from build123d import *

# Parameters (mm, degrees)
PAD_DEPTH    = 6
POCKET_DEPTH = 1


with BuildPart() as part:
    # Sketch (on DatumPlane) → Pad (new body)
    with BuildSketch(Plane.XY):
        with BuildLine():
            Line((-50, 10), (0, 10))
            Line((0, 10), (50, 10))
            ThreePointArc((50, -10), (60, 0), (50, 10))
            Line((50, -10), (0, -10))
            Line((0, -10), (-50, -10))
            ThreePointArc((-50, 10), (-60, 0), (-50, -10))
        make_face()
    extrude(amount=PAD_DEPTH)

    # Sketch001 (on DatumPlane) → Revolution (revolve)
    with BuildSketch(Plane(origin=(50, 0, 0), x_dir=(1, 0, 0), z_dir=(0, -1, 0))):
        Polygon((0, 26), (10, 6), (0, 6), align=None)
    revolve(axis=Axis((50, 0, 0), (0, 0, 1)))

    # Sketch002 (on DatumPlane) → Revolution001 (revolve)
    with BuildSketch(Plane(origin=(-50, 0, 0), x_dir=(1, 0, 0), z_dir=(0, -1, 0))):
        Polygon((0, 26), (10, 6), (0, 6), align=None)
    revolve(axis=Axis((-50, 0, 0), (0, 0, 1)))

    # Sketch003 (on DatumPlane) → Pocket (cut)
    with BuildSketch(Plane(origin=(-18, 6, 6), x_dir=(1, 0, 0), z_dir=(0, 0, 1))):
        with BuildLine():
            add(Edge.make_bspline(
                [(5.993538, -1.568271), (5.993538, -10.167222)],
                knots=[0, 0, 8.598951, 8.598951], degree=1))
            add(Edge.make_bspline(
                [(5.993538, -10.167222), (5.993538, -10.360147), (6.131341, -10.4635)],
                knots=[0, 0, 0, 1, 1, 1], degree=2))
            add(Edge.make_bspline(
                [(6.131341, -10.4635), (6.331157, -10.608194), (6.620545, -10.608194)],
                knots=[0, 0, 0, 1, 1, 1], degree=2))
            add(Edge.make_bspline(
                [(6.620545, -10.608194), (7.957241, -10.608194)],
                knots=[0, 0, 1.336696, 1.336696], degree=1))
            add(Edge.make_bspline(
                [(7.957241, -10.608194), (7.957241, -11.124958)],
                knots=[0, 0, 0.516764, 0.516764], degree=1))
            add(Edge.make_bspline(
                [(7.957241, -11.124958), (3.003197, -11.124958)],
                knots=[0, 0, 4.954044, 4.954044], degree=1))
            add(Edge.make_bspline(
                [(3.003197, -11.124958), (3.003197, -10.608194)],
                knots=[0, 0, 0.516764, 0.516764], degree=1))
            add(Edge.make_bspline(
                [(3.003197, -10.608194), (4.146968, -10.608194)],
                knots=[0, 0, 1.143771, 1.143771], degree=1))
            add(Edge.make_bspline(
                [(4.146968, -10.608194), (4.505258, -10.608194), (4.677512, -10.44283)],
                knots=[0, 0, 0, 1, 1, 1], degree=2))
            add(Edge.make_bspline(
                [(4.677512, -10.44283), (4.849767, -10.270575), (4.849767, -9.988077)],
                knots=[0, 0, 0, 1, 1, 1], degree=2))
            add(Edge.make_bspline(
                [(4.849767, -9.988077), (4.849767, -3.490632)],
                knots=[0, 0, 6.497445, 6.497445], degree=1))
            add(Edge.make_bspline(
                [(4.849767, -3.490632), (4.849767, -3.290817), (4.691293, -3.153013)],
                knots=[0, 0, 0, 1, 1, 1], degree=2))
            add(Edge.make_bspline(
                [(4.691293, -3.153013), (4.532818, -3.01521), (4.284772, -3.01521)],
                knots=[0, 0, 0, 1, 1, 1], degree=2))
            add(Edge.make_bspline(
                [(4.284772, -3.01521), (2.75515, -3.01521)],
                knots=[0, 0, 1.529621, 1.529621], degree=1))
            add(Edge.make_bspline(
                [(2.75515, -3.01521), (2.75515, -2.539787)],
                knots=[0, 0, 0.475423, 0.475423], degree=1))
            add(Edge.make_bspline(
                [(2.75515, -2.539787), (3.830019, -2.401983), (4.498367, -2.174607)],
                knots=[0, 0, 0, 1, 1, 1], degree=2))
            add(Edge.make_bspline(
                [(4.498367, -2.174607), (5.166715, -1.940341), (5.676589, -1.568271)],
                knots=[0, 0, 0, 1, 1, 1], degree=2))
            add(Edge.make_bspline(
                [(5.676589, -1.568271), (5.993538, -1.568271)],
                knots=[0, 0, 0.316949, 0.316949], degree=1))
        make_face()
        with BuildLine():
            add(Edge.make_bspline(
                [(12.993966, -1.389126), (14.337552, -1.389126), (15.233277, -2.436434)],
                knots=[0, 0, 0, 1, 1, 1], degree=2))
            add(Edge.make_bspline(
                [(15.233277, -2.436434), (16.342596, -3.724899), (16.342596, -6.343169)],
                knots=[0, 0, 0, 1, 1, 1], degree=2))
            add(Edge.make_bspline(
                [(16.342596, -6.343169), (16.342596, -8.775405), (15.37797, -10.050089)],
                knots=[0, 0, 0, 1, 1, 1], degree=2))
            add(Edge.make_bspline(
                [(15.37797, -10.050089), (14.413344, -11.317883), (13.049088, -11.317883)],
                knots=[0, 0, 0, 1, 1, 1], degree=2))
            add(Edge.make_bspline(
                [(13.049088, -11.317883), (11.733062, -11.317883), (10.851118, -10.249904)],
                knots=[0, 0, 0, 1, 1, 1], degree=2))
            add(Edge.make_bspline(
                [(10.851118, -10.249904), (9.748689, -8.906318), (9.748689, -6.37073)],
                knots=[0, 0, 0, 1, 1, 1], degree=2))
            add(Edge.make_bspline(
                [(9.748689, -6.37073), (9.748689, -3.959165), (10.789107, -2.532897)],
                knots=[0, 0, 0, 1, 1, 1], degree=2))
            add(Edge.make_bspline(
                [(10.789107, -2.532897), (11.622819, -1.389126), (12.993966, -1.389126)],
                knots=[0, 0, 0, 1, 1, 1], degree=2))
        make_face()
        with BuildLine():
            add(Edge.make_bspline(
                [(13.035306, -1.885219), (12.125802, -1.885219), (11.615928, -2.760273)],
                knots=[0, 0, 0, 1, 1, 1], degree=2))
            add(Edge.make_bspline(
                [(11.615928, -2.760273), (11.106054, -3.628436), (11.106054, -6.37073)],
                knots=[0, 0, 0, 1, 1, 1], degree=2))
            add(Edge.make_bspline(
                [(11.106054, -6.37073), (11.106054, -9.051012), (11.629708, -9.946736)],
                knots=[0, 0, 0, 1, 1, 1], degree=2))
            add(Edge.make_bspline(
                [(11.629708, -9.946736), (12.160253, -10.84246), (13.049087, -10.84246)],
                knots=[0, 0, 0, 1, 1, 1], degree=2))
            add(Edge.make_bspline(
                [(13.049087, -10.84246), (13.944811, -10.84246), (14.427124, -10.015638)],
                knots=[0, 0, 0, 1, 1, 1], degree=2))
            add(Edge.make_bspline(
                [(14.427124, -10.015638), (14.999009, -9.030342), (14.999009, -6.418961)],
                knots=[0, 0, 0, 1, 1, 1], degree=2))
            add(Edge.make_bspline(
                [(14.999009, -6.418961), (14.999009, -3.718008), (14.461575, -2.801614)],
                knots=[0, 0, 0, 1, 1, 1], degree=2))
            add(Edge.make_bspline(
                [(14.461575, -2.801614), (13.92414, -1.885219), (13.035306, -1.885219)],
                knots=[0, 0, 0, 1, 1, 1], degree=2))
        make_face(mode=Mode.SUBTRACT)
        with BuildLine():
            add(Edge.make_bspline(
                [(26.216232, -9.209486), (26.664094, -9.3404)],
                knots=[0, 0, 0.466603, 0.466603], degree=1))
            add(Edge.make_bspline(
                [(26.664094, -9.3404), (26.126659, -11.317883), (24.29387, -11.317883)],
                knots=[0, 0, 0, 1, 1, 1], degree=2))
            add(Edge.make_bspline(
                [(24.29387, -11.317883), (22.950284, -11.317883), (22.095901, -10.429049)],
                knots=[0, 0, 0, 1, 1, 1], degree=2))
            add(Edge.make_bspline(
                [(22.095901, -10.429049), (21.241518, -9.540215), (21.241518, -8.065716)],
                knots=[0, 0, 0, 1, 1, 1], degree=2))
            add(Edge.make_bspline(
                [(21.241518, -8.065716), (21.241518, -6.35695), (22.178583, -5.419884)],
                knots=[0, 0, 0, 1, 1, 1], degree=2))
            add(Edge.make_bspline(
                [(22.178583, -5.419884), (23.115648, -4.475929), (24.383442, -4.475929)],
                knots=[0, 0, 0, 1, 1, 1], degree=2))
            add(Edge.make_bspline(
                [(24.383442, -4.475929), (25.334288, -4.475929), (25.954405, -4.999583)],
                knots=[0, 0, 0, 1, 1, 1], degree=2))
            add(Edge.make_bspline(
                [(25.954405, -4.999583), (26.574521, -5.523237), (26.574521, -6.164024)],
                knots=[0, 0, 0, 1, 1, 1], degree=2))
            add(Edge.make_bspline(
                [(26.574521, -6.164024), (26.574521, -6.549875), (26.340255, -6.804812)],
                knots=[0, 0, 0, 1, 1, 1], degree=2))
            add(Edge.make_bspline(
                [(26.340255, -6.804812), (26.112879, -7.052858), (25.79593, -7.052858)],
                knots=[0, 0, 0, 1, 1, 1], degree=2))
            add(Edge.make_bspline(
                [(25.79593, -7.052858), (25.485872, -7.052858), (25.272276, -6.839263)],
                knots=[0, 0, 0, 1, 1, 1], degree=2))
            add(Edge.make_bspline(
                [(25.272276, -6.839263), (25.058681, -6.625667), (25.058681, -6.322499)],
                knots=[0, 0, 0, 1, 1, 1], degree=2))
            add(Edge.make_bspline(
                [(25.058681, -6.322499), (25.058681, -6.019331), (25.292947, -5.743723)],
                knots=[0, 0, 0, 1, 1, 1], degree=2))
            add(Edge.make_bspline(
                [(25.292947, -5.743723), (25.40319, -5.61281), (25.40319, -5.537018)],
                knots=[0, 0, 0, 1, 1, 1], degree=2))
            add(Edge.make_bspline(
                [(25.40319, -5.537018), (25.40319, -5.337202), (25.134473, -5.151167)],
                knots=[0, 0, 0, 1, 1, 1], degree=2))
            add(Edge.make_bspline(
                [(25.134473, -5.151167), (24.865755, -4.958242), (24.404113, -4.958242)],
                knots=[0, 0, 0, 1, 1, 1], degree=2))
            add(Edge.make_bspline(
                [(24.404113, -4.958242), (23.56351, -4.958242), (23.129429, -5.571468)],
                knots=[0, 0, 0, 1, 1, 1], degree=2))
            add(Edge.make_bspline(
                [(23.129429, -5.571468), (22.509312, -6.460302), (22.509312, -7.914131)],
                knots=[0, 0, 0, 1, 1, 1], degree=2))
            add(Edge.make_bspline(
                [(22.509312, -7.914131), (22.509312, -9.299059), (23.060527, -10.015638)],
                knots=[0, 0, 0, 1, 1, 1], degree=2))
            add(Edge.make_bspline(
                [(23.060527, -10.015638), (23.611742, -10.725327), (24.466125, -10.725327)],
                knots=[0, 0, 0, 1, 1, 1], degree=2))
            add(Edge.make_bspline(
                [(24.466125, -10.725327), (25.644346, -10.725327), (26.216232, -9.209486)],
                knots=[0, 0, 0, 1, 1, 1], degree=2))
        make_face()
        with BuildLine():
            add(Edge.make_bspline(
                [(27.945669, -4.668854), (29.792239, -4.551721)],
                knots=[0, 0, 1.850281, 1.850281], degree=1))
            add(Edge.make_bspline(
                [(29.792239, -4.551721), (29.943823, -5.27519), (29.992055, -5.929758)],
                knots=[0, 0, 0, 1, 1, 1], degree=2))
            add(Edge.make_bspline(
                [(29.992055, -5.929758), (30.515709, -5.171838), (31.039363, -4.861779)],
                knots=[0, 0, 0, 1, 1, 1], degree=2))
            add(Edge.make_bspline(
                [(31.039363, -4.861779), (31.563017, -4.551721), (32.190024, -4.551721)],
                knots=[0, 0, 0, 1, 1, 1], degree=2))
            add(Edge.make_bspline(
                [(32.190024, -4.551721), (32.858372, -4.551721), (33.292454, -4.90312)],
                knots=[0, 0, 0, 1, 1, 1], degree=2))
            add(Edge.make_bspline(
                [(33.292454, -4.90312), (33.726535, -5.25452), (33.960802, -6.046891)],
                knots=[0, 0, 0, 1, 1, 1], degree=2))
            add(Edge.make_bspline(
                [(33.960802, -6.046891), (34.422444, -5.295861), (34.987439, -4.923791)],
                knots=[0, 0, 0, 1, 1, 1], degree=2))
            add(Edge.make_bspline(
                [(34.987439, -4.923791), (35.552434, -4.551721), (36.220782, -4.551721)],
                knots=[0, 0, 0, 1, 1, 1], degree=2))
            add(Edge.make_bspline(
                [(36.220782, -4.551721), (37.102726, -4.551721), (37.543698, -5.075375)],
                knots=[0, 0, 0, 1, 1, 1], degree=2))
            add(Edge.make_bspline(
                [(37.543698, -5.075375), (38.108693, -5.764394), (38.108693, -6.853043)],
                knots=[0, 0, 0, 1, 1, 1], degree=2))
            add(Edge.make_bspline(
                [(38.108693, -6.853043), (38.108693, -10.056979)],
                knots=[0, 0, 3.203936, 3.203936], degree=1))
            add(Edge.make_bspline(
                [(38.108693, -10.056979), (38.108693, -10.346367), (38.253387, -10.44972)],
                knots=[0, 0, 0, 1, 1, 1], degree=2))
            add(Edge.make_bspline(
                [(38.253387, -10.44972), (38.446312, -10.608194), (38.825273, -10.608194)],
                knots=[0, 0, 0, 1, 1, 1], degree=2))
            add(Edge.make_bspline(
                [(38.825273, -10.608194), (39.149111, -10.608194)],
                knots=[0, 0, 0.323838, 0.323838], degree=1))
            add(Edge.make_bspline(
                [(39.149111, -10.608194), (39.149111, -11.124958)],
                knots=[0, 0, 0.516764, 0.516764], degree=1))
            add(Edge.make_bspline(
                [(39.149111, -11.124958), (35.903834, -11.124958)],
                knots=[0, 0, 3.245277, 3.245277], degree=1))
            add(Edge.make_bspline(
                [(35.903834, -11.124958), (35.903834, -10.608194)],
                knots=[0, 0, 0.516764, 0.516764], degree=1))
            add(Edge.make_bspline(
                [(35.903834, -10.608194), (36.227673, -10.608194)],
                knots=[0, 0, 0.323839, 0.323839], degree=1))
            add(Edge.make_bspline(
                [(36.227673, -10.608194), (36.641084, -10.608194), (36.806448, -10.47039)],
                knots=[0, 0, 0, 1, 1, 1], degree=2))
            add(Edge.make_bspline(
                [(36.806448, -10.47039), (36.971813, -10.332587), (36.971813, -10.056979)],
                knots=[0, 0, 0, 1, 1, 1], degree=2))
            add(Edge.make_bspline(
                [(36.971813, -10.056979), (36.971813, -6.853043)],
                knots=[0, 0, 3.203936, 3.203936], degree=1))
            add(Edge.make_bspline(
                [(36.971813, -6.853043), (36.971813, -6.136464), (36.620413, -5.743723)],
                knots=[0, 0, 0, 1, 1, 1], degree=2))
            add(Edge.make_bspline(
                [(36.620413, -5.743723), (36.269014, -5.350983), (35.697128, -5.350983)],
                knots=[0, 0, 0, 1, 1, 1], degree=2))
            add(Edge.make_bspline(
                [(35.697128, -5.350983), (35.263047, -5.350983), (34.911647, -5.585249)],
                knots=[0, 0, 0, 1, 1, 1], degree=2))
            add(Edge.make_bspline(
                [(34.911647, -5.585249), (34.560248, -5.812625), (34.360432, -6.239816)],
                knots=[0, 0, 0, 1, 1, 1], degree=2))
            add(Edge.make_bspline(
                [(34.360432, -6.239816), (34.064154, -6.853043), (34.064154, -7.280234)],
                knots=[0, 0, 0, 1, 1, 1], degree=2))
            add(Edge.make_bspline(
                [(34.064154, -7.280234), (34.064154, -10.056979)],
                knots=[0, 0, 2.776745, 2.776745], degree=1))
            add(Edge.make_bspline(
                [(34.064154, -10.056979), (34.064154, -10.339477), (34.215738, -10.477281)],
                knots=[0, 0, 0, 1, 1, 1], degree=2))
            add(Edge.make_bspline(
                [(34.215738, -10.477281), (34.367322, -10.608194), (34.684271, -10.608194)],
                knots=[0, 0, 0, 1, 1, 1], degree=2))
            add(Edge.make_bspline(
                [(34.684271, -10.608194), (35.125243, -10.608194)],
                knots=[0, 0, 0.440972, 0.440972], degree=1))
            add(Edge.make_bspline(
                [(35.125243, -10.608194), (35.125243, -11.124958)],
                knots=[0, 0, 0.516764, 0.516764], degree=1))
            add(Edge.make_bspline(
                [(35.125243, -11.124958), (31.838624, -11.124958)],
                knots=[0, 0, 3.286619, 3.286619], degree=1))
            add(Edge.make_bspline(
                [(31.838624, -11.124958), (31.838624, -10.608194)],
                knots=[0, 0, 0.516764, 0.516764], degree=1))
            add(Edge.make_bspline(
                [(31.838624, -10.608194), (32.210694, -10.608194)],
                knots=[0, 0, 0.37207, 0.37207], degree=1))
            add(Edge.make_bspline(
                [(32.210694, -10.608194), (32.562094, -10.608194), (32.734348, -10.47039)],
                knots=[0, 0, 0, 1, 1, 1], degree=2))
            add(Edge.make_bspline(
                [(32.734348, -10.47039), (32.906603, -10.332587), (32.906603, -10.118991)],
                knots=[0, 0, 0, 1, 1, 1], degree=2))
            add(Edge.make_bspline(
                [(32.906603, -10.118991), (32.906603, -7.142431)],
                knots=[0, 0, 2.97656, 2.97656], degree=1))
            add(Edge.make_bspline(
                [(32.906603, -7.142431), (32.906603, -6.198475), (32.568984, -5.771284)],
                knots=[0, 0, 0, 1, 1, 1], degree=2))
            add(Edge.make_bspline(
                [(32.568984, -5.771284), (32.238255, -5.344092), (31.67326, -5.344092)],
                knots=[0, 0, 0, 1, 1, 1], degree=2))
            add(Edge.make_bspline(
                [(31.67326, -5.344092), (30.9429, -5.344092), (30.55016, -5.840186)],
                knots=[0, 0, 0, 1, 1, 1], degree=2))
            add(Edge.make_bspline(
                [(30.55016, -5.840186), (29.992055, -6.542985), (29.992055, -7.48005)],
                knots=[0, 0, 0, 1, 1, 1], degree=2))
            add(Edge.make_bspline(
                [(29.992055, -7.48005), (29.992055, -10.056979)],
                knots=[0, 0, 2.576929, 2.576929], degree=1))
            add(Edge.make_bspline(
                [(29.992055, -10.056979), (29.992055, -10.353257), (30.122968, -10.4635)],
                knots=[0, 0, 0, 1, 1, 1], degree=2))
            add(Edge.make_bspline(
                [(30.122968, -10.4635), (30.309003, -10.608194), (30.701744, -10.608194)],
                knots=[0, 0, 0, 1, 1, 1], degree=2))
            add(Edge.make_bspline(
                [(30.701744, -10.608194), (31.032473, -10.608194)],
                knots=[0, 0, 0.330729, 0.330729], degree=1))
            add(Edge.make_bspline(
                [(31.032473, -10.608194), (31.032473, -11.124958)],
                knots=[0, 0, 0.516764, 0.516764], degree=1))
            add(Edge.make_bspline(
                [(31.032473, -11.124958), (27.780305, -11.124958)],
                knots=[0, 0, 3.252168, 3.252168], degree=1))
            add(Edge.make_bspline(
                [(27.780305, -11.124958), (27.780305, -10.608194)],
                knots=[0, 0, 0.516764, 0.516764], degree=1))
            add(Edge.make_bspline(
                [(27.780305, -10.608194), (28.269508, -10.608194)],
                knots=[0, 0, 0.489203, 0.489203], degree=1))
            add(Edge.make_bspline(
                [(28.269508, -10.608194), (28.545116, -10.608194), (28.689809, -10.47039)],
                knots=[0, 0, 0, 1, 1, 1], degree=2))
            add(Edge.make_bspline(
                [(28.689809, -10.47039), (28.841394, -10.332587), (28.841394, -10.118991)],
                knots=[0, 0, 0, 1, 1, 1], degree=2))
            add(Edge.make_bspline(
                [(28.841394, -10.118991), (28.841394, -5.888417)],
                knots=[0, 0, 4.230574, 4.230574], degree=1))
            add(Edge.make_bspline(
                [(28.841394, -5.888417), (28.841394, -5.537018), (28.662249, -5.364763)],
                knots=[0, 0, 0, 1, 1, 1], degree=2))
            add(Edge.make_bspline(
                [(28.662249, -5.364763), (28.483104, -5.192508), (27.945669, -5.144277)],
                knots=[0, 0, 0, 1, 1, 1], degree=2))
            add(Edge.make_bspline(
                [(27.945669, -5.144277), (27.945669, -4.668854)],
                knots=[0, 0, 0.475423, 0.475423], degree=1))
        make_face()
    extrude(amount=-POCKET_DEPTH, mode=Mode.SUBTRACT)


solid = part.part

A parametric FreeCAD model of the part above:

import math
import FreeCAD as App
import Part
import Sketcher
from FreeCAD import Vector
Q = App.Units.Quantity


def add_polygon(sketch, points):
    """Adds a closed chain of lines whose ends are joined by coincident constraints."""
    first, n = sketch.GeometryCount, len(points)
    for a, b in zip(points, points[1:] + points[:1]):
        sketch.addGeometry(Part.LineSegment(App.Vector(*a, 0), App.Vector(*b, 0)), False)
    for i in range(n):
        sketch.addConstraint(Sketcher.Constraint("Coincident", first + i, 2, first + (i + 1) % n, 1))

doc = App.newDocument("Part")
body = doc.addObject("PartDesign::Body", "Body")

# Sketch on XY plane
sketch1 = body.newObject("Sketcher::SketchObject", "Sketch")
sketch1.AttachmentSupport = (doc.getObject("XY_Plane"), [""])
sketch1.MapMode = "FlatFace"
sketch1.addGeometry(Part.LineSegment(Vector(50, 10, 0), Vector(-50, 10, 0)), False)
sketch1.addGeometry(Part.ArcOfCircle(Part.Circle(Vector(-50, 0, 0), Vector(0, 0, 1), 10), math.radians(90), math.radians(270)), False)
sketch1.addGeometry(Part.LineSegment(Vector(-50, -10, 0), Vector(50, -10, 0)), False)
sketch1.addGeometry(Part.ArcOfCircle(Part.Circle(Vector(50, 0, 0), Vector(0, 0, 1), 10), math.radians(-90), math.radians(90)), False)
sketch1.addConstraint(Sketcher.Constraint("Tangent", 0, 2, 1, 1))
sketch1.addConstraint(Sketcher.Constraint("Tangent", 1, 2, 2, 1))
sketch1.addConstraint(Sketcher.Constraint("Tangent", 2, 2, 3, 1))
sketch1.addConstraint(Sketcher.Constraint("Tangent", 3, 2, 0, 1))
sketch1.addConstraint(Sketcher.Constraint("Horizontal", 0))
sketch1.addConstraint(Sketcher.Constraint("Horizontal", 2))
sketch1.addConstraint(Sketcher.Constraint("Symmetric", 1, 3, 3, 3, -1, 1))
sketch1.addConstraint(Sketcher.Constraint("Radius", 1, Q("10 mm")))
sketch1.addConstraint(Sketcher.Constraint("DistanceX", 0, 2, 0, 1, Q("100 mm")))
pad1 = body.newObject("PartDesign::Pad", "Pad")
pad1.Profile = sketch1
pad1.Length = 6

# Sketch on XZ plane
sketch2 = body.newObject("Sketcher::SketchObject", "Sketch001")
sketch2.AttachmentSupport = (doc.getObject("XZ_Plane"), [""])
sketch2.MapMode = "FlatFace"
add_polygon(sketch2, [(60, 6), (50, 26), (50, 6)])  # lines 0-2
sketch2.addGeometry(Part.LineSegment(Vector(50, 6, 0), Vector(50, 26, 0)), True)  # axis
sketch2.addConstraint(Sketcher.Constraint("Vertical", 1))
sketch2.addConstraint(Sketcher.Constraint("Horizontal", 2))
sketch2.addConstraint(Sketcher.Constraint("Vertical", 3))
sketch2.addConstraint(Sketcher.Constraint("Coincident", 3, 1, 1, 2))
sketch2.addConstraint(Sketcher.Constraint("Equal", 1, 3))
sketch2.addConstraint(Sketcher.Constraint("DistanceX", 2, 1, 2, 2, Q("10 mm")))
sketch2.addConstraint(Sketcher.Constraint("DistanceY", 1, 2, 1, 1, Q("20 mm")))
sketch2.addConstraint(Sketcher.Constraint("DistanceX", -1, 1, 0, 2, Q("50 mm")))
sketch2.addConstraint(Sketcher.Constraint("DistanceY", -1, 1, 0, 2, Q("26 mm")))
revolution = body.newObject("PartDesign::Revolution", "Revolution")
revolution.Profile = sketch2
revolution.ReferenceAxis = (sketch2, ["Axis0"])
revolution.Angle = 360

# Sketch on XZ plane
sketch3 = body.newObject("Sketcher::SketchObject", "Sketch002")
sketch3.AttachmentSupport = (doc.getObject("XZ_Plane"), [""])
sketch3.MapMode = "FlatFace"
add_polygon(sketch3, [(-40, 6), (-50, 26), (-50, 6)])  # lines 0-2
sketch3.addGeometry(Part.LineSegment(Vector(-50, 6, 0), Vector(-50, 26, 0)), True)  # axis
sketch3.addConstraint(Sketcher.Constraint("Vertical", 1))
sketch3.addConstraint(Sketcher.Constraint("Horizontal", 2))
sketch3.addConstraint(Sketcher.Constraint("Vertical", 3))
sketch3.addConstraint(Sketcher.Constraint("Coincident", 3, 1, 1, 2))
sketch3.addConstraint(Sketcher.Constraint("Equal", 1, 3))
sketch3.addConstraint(Sketcher.Constraint("DistanceX", 2, 1, 2, 2, Q("10 mm")))
sketch3.addConstraint(Sketcher.Constraint("DistanceY", 1, 2, 1, 1, Q("20 mm")))
sketch3.addConstraint(Sketcher.Constraint("DistanceX", 0, 2, -1, 1, Q("50 mm")))
sketch3.addConstraint(Sketcher.Constraint("DistanceY", -1, 1, 0, 2, Q("26 mm")))
revolution2 = body.newObject("PartDesign::Revolution", "Revolution001")
revolution2.Profile = sketch3
revolution2.ReferenceAxis = (sketch3, ["Axis0"])
revolution2.Angle = 360

# Sketch on XY plane
sketch4 = body.newObject("Sketcher::SketchObject", "Sketch003")
sketch4.AttachmentSupport = (doc.getObject("XY_Plane"), [""])
sketch4.MapMode = "FlatFace"
sketch4.AttachmentOffset = App.Placement(Vector(0, 0, 6), App.Rotation())
sketch4.addGeometry(Part.BSplineCurve([Vector(-12.006462, 4.431729, 0), Vector(-12.006462, 0.132253, 0), Vector(-12.006462, -4.360147, 0), Vector(-11.868659, -4.4635, 0)], [3, 1, 3], [0, 8.598951, 8.984801], False, 2, [1, 1, 1, 1], False), False)
sketch4.addGeometry(Part.BSplineCurve([Vector(-12.323411, 4.431729, 0), Vector(-12.006462, 4.431729, 0)], [2, 2], [0, 0.316949], False, 1, [1, 1], False), False)
sketch4.addGeometry(Part.BSplineCurve([Vector(-13.501633, 3.825393, 0), Vector(-12.833285, 4.059659, 0), Vector(-12.323411, 4.431729, 0)], [3, 3], [0, 1], False, 2, [1, 1, 1], False), False)
sketch4.addGeometry(Part.BSplineCurve([Vector(-15.24485, 3.460213, 0), Vector(-14.169981, 3.598017, 0), Vector(-13.501633, 3.825393, 0)], [3, 3], [0, 1], False, 2, [1, 1, 1], False), False)
sketch4.addGeometry(Part.BSplineCurve([Vector(-15.24485, 2.98479, 0), Vector(-15.24485, 3.460213, 0)], [2, 2], [0, 0.475423], False, 1, [1, 1], False), False)
sketch4.addGeometry(Part.BSplineCurve([Vector(-13.308707, 2.846987, 0), Vector(-13.467182, 2.98479, 0), Vector(-14.480039, 2.98479, 0), Vector(-15.24485, 2.98479, 0)], [3, 1, 3], [0, 1, 4.083343412], False, 2, [1, 1, 1, 1], False), False)
sketch4.addGeometry(Part.BSplineCurve([Vector(-13.322488, -4.44283, 0), Vector(-13.150233, -4.270575, 0), Vector(-13.150233, -0.739355, 0), Vector(-13.150233, 2.709183, 0), Vector(-13.308707, 2.846987, 0)], [3, 1, 1, 3], [0, 1, 12.499984071, 13.207298813], False, 2, [1, 1, 1, 1, 1], False), False)
sketch4.addGeometry(Part.BSplineCurve([Vector(-14.996803, -4.608194, 0), Vector(-14.424917, -4.608194, 0), Vector(-13.494742, -4.608194, 0), Vector(-13.322488, -4.44283, 0)], [3, 1, 3], [0, 1.143771, 1.860351], False, 2, [1, 1, 1, 1], False), False)
sketch4.addGeometry(Part.BSplineCurve([Vector(-14.996803, -5.124958, 0), Vector(-14.996803, -4.608194, 0)], [2, 2], [0, 0.516764], False, 1, [1, 1], False), False)
sketch4.addGeometry(Part.BSplineCurve([Vector(-10.042759, -5.124958, 0), Vector(-14.996803, -5.124958, 0)], [2, 2], [0, 4.954044], False, 1, [1, 1], False), False)
sketch4.addGeometry(Part.BSplineCurve([Vector(-10.042759, -4.608194, 0), Vector(-10.042759, -5.124958, 0)], [2, 2], [0, 0.516764], False, 1, [1, 1], False), False)
sketch4.addGeometry(Part.BSplineCurve([Vector(-11.868659, -4.4635, 0), Vector(-11.668843, -4.608194, 0), Vector(-10.711107, -4.608194, 0), Vector(-10.042759, -4.608194, 0)], [3, 1, 3], [0, 1, 3.309522164], False, 2, [1, 1, 1, 1], False), False)
sketch4.addGeometry(Part.BSplineCurve([Vector(-2.766723, 3.563566, 0), Vector(-1.657404, 2.275101, 0), Vector(-1.657404, -2.775405, 0), Vector(-2.62203, -4.050089, 0)], [3, 1, 3], [0, 1, 1.92894774], False, 2, [1, 1, 1, 1], False), False)
sketch4.addGeometry(Part.BSplineCurve([Vector(-7.210893, 3.467103, 0), Vector(-6.377181, 4.610874, 0), Vector(-3.662448, 4.610874, 0), Vector(-2.766723, 3.563566, 0)], [3, 1, 3], [0, 1, 1.979899311], False, 2, [1, 1, 1, 1], False), False)
sketch4.addGeometry(Part.BSplineCurve([Vector(-7.148882, -4.249904, 0), Vector(-8.251311, -2.906318, 0), Vector(-8.251311, 2.040835, 0), Vector(-7.210893, 3.467103, 0)], [3, 1, 3], [0, 1, 1.951087085], False, 2, [1, 1, 1, 1], False), False)
sketch4.addGeometry(Part.BSplineCurve([Vector(-2.62203, -4.050089, 0), Vector(-3.586656, -5.317883, 0), Vector(-6.266938, -5.317883, 0), Vector(-7.148882, -4.249904, 0)], [3, 1, 3], [0, 1, 1.964647398], False, 2, [1, 1, 1, 1], False), False)
sketch4.addGeometry(Part.BSplineCurve([Vector(-3.538425, 3.198386, 0), Vector(-4.07586, 4.114781, 0), Vector(-5.874198, 4.114781, 0), Vector(-6.384072, 3.239727, 0)], [3, 1, 3], [0, 1, 2.023255186], False, 2, [1, 1, 1, 1], False), False)
sketch4.addGeometry(Part.BSplineCurve([Vector(-3.572876, -4.015638, 0), Vector(-3.000991, -3.030342, 0), Vector(-3.000991, 2.281992, 0), Vector(-3.538425, 3.198386, 0)], [3, 1, 3], [0, 1, 2.034300625], False, 2, [1, 1, 1, 1], False), False)
sketch4.addGeometry(Part.BSplineCurve([Vector(-6.370292, -3.946736, 0), Vector(-5.839747, -4.84246, 0), Vector(-4.055189, -4.84246, 0), Vector(-3.572876, -4.015638, 0)], [3, 1, 3], [0, 1, 2.007751729], False, 2, [1, 1, 1, 1], False), False)
sketch4.addGeometry(Part.BSplineCurve([Vector(-6.384072, 3.239727, 0), Vector(-6.893946, 2.371564, 0), Vector(-6.893946, -3.051012, 0), Vector(-6.370292, -3.946736, 0)], [3, 1, 3], [0, 1, 1.977386816], False, 2, [1, 1, 1, 1], False), False)
sketch4.addGeometry(Part.BSplineCurve([Vector(8.216232, -3.209486, 0), Vector(8.664094, -3.3404, 0)], [2, 2], [0, 0.466603], False, 1, [1, 1], False), False)
sketch4.addGeometry(Part.BSplineCurve([Vector(5.060527, -4.015638, 0), Vector(5.611742, -4.725327, 0), Vector(7.644346, -4.725327, 0), Vector(8.216232, -3.209486, 0)], [3, 1, 3], [0, 1, 2.379031418], False, 2, [1, 1, 1, 1], False), False)
sketch4.addGeometry(Part.BSplineCurve([Vector(5.129429, 0.428532, 0), Vector(4.509312, -0.460302, 0), Vector(4.509312, -3.299059, 0), Vector(5.060527, -4.015638, 0)], [3, 1, 3], [0, 1, 1.952607219], False, 2, [1, 1, 1, 1], False), False)
sketch4.addGeometry(Part.BSplineCurve([Vector(7.134473, 0.848833, 0), Vector(6.865755, 1.041758, 0), Vector(5.56351, 1.041758, 0), Vector(5.129429, 0.428532, 0)], [3, 1, 3], [0, 1, 2.820898012], False, 2, [1, 1, 1, 1], False), False)
sketch4.addGeometry(Part.BSplineCurve([Vector(7.292947, 0.256277, 0), Vector(7.40319, 0.38719, 0), Vector(7.40319, 0.662798, 0), Vector(7.134473, 0.848833, 0)], [3, 1, 3], [0, 1, 3.636373232], False, 2, [1, 1, 1, 1], False), False)
sketch4.addGeometry(Part.BSplineCurve([Vector(7.272276, -0.839263, 0), Vector(7.058681, -0.625667, 0), Vector(7.058681, -0.019331, 0), Vector(7.292947, 0.256277, 0)], [3, 1, 3], [0, 1, 2], False, 2, [1, 1, 1, 1], False), False)
sketch4.addGeometry(Part.BSplineCurve([Vector(8.340255, -0.804812, 0), Vector(8.112879, -1.052858, 0), Vector(7.485872, -1.052858, 0), Vector(7.272276, -0.839263, 0)], [3, 1, 3], [0, 1, 1.978258332], False, 2, [1, 1, 1, 1], False), False)
sketch4.addGeometry(Part.BSplineCurve([Vector(7.954405, 1.000417, 0), Vector(8.574521, 0.476763, 0), Vector(8.574521, -0.549875, 0), Vector(8.340255, -0.804812, 0)], [3, 1, 3], [0, 1, 1.602151729], False, 2, [1, 1, 1, 1], False), False)
sketch4.addGeometry(Part.BSplineCurve([Vector(4.178583, 0.580116, 0), Vector(5.115648, 1.524071, 0), Vector(7.334288, 1.524071, 0), Vector(7.954405, 1.000417, 0)], [3, 1, 3], [0, 1, 1.750000394], False, 2, [1, 1, 1, 1], False), False)
sketch4.addGeometry(Part.BSplineCurve([Vector(8.664094, -3.3404, 0), Vector(8.126659, -5.317883, 0), Vector(4.950284, -5.317883, 0), Vector(3.241518, -3.540215, 0), Vector(3.241518, -0.35695, 0), Vector(4.178583, 0.580116, 0)], [3, 1, 1, 1, 3], [0, 1, 1.73308275, 2.4661655, 3.31571974], False, 2, [1, 1, 1, 1, 1, 1], False), False)
sketch4.addGeometry(Part.BSplineCurve([Vector(9.945669, 1.331146, 0), Vector(11.792239, 1.448279, 0)], [2, 2], [0, 1.850281], False, 1, [1, 1], False), False)
sketch4.addGeometry(Part.BSplineCurve([Vector(9.945669, 0.855723, 0), Vector(9.945669, 1.331146, 0)], [2, 2], [0, 0.475423], False, 1, [1, 1], False), False)
sketch4.addGeometry(Part.BSplineCurve([Vector(10.689809, -4.47039, 0), Vector(10.841394, -4.332587, 0), Vector(10.841394, -2.003704, 0), Vector(10.841394, 0.462982, 0), Vector(10.483104, 0.807492, 0), Vector(9.945669, 0.855723, 0)], [3, 1, 1, 1, 3], [0, 1, 10.90321448, 12.548371692, 14.193528905], False, 2, [1, 1, 1, 1, 1, 1], False), False)
sketch4.addGeometry(Part.BSplineCurve([Vector(9.780305, -4.608194, 0), Vector(10.024907, -4.608194, 0), Vector(10.545116, -4.608194, 0), Vector(10.689809, -4.47039, 0)], [3, 1, 3], [0, 0.489203, 1.040419], False, 2, [1, 1, 1, 1], False), False)
sketch4.addGeometry(Part.BSplineCurve([Vector(9.780305, -5.124958, 0), Vector(9.780305, -4.608194, 0)], [2, 2], [0, 0.516764], False, 1, [1, 1], False), False)
sketch4.addGeometry(Part.BSplineCurve([Vector(13.032473, -5.124958, 0), Vector(9.780305, -5.124958, 0)], [2, 2], [0, 3.252168], False, 1, [1, 1], False), False)
sketch4.addGeometry(Part.BSplineCurve([Vector(13.032473, -4.608194, 0), Vector(13.032473, -5.124958, 0)], [2, 2], [0, 0.516764], False, 1, [1, 1], False), False)
sketch4.addGeometry(Part.BSplineCurve([Vector(12.122968, -4.4635, 0), Vector(12.309003, -4.608194, 0), Vector(12.867109, -4.608194, 0), Vector(13.032473, -4.608194, 0)], [3, 1, 3], [0, 1, 1.421052297], False, 2, [1, 1, 1, 1], False), False)
sketch4.addGeometry(Part.BSplineCurve([Vector(12.55016, 0.159814, 0), Vector(11.992055, -0.542985, 0), Vector(11.992055, -2.768515, 0), Vector(11.992055, -4.353257, 0), Vector(12.122968, -4.4635, 0)], [3, 1, 1, 3], [0, 1, 2.375000133, 2.691176706], False, 2, [1, 1, 1, 1, 1], False), False)
sketch4.addGeometry(Part.BSplineCurve([Vector(14.568984, 0.228716, 0), Vector(14.238255, 0.655908, 0), Vector(12.9429, 0.655908, 0), Vector(12.55016, 0.159814, 0)], [3, 1, 3], [0, 1, 2.292684006], False, 2, [1, 1, 1, 1], False), False)
sketch4.addGeometry(Part.BSplineCurve([Vector(14.734348, -4.47039, 0), Vector(14.906603, -4.332587, 0), Vector(14.906603, -2.630711, 0), Vector(14.906603, -0.198475, 0), Vector(14.568984, 0.228716, 0)], [3, 1, 1, 3], [0, 1, 7.967733478, 12.3870859], False, 2, [1, 1, 1, 1, 1], False), False)
sketch4.addGeometry(Part.BSplineCurve([Vector(13.838624, -4.608194, 0), Vector(14.024659, -4.608194, 0), Vector(14.562094, -4.608194, 0), Vector(14.734348, -4.47039, 0)], [3, 1, 3], [0, 0.37207, 1.07487], False, 2, [1, 1, 1, 1], False), False)
sketch4.addGeometry(Part.BSplineCurve([Vector(13.838624, -5.124958, 0), Vector(13.838624, -4.608194, 0)], [2, 2], [0, 0.516764], False, 1, [1, 1], False), False)
sketch4.addGeometry(Part.BSplineCurve([Vector(17.125243, -5.124958, 0), Vector(13.838624, -5.124958, 0)], [2, 2], [0, 3.286619], False, 1, [1, 1], False), False)
sketch4.addGeometry(Part.BSplineCurve([Vector(17.125243, -4.608194, 0), Vector(17.125243, -5.124958, 0)], [2, 2], [0, 0.516764], False, 1, [1, 1], False), False)
sketch4.addGeometry(Part.BSplineCurve([Vector(16.215738, -4.477281, 0), Vector(16.367322, -4.608194, 0), Vector(16.904757, -4.608194, 0), Vector(17.125243, -4.608194, 0)], [3, 1, 3], [0, 1, 1.695651351], False, 2, [1, 1, 1, 1], False), False)
sketch4.addGeometry(Part.BSplineCurve([Vector(16.360432, -0.239816, 0), Vector(16.064154, -0.853043, 0), Vector(16.064154, -2.668607, 0), Vector(16.064154, -4.339477, 0), Vector(16.215738, -4.477281, 0)], [3, 1, 1, 3], [0, 1, 4.250004097, 4.911296118], False, 2, [1, 1, 1, 1, 1], False), False)
sketch4.addGeometry(Part.BSplineCurve([Vector(16.911647, 0.414751, 0), Vector(16.560248, 0.187375, 0), Vector(16.360432, -0.239816, 0)], [3, 3], [0, 1], False, 2, [1, 1, 1], False), False)
sketch4.addGeometry(Part.BSplineCurve([Vector(18.620413, 0.256277, 0), Vector(18.269014, 0.649017, 0), Vector(17.263047, 0.649017, 0), Vector(16.911647, 0.414751, 0)], [3, 1, 3], [0, 1, 1.759034143], False, 2, [1, 1, 1, 1], False), False)
sketch4.addGeometry(Part.BSplineCurve([Vector(18.806448, -4.47039, 0), Vector(18.971813, -4.332587, 0), Vector(18.971813, -2.455011, 0), Vector(18.971813, -0.136464, 0), Vector(18.620413, 0.256277, 0)], [3, 1, 1, 3], [0, 1, 6.812487301, 9.41248077], False, 2, [1, 1, 1, 1, 1], False), False)
sketch4.addGeometry(Part.BSplineCurve([Vector(17.903834, -4.608194, 0), Vector(18.065753, -4.608194, 0), Vector(18.641084, -4.608194, 0), Vector(18.806448, -4.47039, 0)], [3, 1, 3], [0, 0.323839, 1.150661], False, 2, [1, 1, 1, 1], False), False)
sketch4.addGeometry(Part.BSplineCurve([Vector(17.903834, -5.124958, 0), Vector(17.903834, -4.608194, 0)], [2, 2], [0, 0.516764], False, 1, [1, 1], False), False)
sketch4.addGeometry(Part.BSplineCurve([Vector(21.149111, -5.124958, 0), Vector(17.903834, -5.124958, 0)], [2, 2], [0, 3.245277], False, 1, [1, 1], False), False)
sketch4.addGeometry(Part.BSplineCurve([Vector(21.149111, -4.608194, 0), Vector(21.149111, -5.124958, 0)], [2, 2], [0, 0.516764], False, 1, [1, 1], False), False)
sketch4.addGeometry(Part.BSplineCurve([Vector(20.253387, -4.44972, 0), Vector(20.446312, -4.608194, 0), Vector(20.987192, -4.608194, 0), Vector(21.149111, -4.608194, 0)], [3, 1, 3], [0, 1, 1.42727088], False, 2, [1, 1, 1, 1], False), False)
sketch4.addGeometry(Part.BSplineCurve([Vector(19.543698, 0.924625, 0), Vector(20.108693, 0.235606, 0), Vector(20.108693, -2.455011, 0), Vector(20.108693, -4.346367, 0), Vector(20.253387, -4.44972, 0)], [3, 1, 1, 3], [0, 1, 2.471519287, 2.737342339], False, 2, [1, 1, 1, 1, 1], False), False)
sketch4.addGeometry(Part.BSplineCurve([Vector(15.960802, -0.046891, 0), Vector(16.422444, 0.704139, 0), Vector(17.552434, 1.448279, 0), Vector(19.102726, 1.448279, 0), Vector(19.543698, 0.924625, 0)], [3, 1, 1, 3], [0, 1, 2, 3.319587999], False, 2, [1, 1, 1, 1, 1], False), False)
sketch4.addGeometry(Part.BSplineCurve([Vector(15.292454, 1.09688, 0), Vector(15.726535, 0.74548, 0), Vector(15.960802, -0.046891, 0)], [3, 3], [0, 1], False, 2, [1, 1, 1], False), False)
sketch4.addGeometry(Part.BSplineCurve([Vector(13.039363, 1.138221, 0), Vector(13.563017, 1.448279, 0), Vector(14.858372, 1.448279, 0), Vector(15.292454, 1.09688, 0)], [3, 1, 3], [0, 1, 2.065933873], False, 2, [1, 1, 1, 1], False), False)
sketch4.addGeometry(Part.BSplineCurve([Vector(11.992055, 0.070242, 0), Vector(12.515709, 0.828162, 0), Vector(13.039363, 1.138221, 0)], [3, 3], [0, 1], False, 2, [1, 1, 1], False), False)
sketch4.addGeometry(Part.BSplineCurve([Vector(11.792239, 1.448279, 0), Vector(11.943823, 0.72481, 0), Vector(11.992055, 0.070242, 0)], [3, 3], [0, 1], False, 2, [1, 1, 1], False), False)
sketch4.addConstraint(Sketcher.Constraint("Block", 0))
sketch4.addConstraint(Sketcher.Constraint("Block", 1))
sketch4.addConstraint(Sketcher.Constraint("Block", 2))
sketch4.addConstraint(Sketcher.Constraint("Block", 3))
sketch4.addConstraint(Sketcher.Constraint("Block", 4))
sketch4.addConstraint(Sketcher.Constraint("Block", 5))
sketch4.addConstraint(Sketcher.Constraint("Block", 6))
sketch4.addConstraint(Sketcher.Constraint("Block", 7))
sketch4.addConstraint(Sketcher.Constraint("Block", 8))
sketch4.addConstraint(Sketcher.Constraint("Block", 9))
sketch4.addConstraint(Sketcher.Constraint("Block", 10))
sketch4.addConstraint(Sketcher.Constraint("Block", 11))
sketch4.addConstraint(Sketcher.Constraint("Block", 12))
sketch4.addConstraint(Sketcher.Constraint("Block", 13))
sketch4.addConstraint(Sketcher.Constraint("Block", 14))
sketch4.addConstraint(Sketcher.Constraint("Block", 15))
sketch4.addConstraint(Sketcher.Constraint("Block", 16))
sketch4.addConstraint(Sketcher.Constraint("Block", 17))
sketch4.addConstraint(Sketcher.Constraint("Block", 18))
sketch4.addConstraint(Sketcher.Constraint("Block", 19))
sketch4.addConstraint(Sketcher.Constraint("Block", 20))
sketch4.addConstraint(Sketcher.Constraint("Block", 21))
sketch4.addConstraint(Sketcher.Constraint("Block", 22))
sketch4.addConstraint(Sketcher.Constraint("Block", 23))
sketch4.addConstraint(Sketcher.Constraint("Block", 24))
sketch4.addConstraint(Sketcher.Constraint("Block", 25))
sketch4.addConstraint(Sketcher.Constraint("Block", 26))
sketch4.addConstraint(Sketcher.Constraint("Block", 27))
sketch4.addConstraint(Sketcher.Constraint("Block", 28))
sketch4.addConstraint(Sketcher.Constraint("Block", 29))
sketch4.addConstraint(Sketcher.Constraint("Block", 30))
sketch4.addConstraint(Sketcher.Constraint("Block", 31))
sketch4.addConstraint(Sketcher.Constraint("Block", 32))
sketch4.addConstraint(Sketcher.Constraint("Block", 33))
sketch4.addConstraint(Sketcher.Constraint("Block", 34))
sketch4.addConstraint(Sketcher.Constraint("Block", 35))
sketch4.addConstraint(Sketcher.Constraint("Block", 36))
sketch4.addConstraint(Sketcher.Constraint("Block", 37))
sketch4.addConstraint(Sketcher.Constraint("Block", 38))
sketch4.addConstraint(Sketcher.Constraint("Block", 39))
sketch4.addConstraint(Sketcher.Constraint("Block", 40))
sketch4.addConstraint(Sketcher.Constraint("Block", 41))
sketch4.addConstraint(Sketcher.Constraint("Block", 42))
sketch4.addConstraint(Sketcher.Constraint("Block", 43))
sketch4.addConstraint(Sketcher.Constraint("Block", 44))
sketch4.addConstraint(Sketcher.Constraint("Block", 45))
sketch4.addConstraint(Sketcher.Constraint("Block", 46))
sketch4.addConstraint(Sketcher.Constraint("Block", 47))
sketch4.addConstraint(Sketcher.Constraint("Block", 48))
sketch4.addConstraint(Sketcher.Constraint("Block", 49))
sketch4.addConstraint(Sketcher.Constraint("Block", 50))
sketch4.addConstraint(Sketcher.Constraint("Block", 51))
sketch4.addConstraint(Sketcher.Constraint("Block", 52))
sketch4.addConstraint(Sketcher.Constraint("Block", 53))
sketch4.addConstraint(Sketcher.Constraint("Block", 54))
sketch4.addConstraint(Sketcher.Constraint("Block", 55))
sketch4.addConstraint(Sketcher.Constraint("Block", 56))
sketch4.addConstraint(Sketcher.Constraint("Block", 57))
sketch4.addConstraint(Sketcher.Constraint("Block", 58))
sketch4.addConstraint(Sketcher.Constraint("Block", 59))
sketch4.addConstraint(Sketcher.Constraint("Block", 60))
pocket1 = body.newObject("PartDesign::Pocket", "Pocket")
pocket1.Profile = sketch4
pocket1.Length = 1

doc.recompute()
